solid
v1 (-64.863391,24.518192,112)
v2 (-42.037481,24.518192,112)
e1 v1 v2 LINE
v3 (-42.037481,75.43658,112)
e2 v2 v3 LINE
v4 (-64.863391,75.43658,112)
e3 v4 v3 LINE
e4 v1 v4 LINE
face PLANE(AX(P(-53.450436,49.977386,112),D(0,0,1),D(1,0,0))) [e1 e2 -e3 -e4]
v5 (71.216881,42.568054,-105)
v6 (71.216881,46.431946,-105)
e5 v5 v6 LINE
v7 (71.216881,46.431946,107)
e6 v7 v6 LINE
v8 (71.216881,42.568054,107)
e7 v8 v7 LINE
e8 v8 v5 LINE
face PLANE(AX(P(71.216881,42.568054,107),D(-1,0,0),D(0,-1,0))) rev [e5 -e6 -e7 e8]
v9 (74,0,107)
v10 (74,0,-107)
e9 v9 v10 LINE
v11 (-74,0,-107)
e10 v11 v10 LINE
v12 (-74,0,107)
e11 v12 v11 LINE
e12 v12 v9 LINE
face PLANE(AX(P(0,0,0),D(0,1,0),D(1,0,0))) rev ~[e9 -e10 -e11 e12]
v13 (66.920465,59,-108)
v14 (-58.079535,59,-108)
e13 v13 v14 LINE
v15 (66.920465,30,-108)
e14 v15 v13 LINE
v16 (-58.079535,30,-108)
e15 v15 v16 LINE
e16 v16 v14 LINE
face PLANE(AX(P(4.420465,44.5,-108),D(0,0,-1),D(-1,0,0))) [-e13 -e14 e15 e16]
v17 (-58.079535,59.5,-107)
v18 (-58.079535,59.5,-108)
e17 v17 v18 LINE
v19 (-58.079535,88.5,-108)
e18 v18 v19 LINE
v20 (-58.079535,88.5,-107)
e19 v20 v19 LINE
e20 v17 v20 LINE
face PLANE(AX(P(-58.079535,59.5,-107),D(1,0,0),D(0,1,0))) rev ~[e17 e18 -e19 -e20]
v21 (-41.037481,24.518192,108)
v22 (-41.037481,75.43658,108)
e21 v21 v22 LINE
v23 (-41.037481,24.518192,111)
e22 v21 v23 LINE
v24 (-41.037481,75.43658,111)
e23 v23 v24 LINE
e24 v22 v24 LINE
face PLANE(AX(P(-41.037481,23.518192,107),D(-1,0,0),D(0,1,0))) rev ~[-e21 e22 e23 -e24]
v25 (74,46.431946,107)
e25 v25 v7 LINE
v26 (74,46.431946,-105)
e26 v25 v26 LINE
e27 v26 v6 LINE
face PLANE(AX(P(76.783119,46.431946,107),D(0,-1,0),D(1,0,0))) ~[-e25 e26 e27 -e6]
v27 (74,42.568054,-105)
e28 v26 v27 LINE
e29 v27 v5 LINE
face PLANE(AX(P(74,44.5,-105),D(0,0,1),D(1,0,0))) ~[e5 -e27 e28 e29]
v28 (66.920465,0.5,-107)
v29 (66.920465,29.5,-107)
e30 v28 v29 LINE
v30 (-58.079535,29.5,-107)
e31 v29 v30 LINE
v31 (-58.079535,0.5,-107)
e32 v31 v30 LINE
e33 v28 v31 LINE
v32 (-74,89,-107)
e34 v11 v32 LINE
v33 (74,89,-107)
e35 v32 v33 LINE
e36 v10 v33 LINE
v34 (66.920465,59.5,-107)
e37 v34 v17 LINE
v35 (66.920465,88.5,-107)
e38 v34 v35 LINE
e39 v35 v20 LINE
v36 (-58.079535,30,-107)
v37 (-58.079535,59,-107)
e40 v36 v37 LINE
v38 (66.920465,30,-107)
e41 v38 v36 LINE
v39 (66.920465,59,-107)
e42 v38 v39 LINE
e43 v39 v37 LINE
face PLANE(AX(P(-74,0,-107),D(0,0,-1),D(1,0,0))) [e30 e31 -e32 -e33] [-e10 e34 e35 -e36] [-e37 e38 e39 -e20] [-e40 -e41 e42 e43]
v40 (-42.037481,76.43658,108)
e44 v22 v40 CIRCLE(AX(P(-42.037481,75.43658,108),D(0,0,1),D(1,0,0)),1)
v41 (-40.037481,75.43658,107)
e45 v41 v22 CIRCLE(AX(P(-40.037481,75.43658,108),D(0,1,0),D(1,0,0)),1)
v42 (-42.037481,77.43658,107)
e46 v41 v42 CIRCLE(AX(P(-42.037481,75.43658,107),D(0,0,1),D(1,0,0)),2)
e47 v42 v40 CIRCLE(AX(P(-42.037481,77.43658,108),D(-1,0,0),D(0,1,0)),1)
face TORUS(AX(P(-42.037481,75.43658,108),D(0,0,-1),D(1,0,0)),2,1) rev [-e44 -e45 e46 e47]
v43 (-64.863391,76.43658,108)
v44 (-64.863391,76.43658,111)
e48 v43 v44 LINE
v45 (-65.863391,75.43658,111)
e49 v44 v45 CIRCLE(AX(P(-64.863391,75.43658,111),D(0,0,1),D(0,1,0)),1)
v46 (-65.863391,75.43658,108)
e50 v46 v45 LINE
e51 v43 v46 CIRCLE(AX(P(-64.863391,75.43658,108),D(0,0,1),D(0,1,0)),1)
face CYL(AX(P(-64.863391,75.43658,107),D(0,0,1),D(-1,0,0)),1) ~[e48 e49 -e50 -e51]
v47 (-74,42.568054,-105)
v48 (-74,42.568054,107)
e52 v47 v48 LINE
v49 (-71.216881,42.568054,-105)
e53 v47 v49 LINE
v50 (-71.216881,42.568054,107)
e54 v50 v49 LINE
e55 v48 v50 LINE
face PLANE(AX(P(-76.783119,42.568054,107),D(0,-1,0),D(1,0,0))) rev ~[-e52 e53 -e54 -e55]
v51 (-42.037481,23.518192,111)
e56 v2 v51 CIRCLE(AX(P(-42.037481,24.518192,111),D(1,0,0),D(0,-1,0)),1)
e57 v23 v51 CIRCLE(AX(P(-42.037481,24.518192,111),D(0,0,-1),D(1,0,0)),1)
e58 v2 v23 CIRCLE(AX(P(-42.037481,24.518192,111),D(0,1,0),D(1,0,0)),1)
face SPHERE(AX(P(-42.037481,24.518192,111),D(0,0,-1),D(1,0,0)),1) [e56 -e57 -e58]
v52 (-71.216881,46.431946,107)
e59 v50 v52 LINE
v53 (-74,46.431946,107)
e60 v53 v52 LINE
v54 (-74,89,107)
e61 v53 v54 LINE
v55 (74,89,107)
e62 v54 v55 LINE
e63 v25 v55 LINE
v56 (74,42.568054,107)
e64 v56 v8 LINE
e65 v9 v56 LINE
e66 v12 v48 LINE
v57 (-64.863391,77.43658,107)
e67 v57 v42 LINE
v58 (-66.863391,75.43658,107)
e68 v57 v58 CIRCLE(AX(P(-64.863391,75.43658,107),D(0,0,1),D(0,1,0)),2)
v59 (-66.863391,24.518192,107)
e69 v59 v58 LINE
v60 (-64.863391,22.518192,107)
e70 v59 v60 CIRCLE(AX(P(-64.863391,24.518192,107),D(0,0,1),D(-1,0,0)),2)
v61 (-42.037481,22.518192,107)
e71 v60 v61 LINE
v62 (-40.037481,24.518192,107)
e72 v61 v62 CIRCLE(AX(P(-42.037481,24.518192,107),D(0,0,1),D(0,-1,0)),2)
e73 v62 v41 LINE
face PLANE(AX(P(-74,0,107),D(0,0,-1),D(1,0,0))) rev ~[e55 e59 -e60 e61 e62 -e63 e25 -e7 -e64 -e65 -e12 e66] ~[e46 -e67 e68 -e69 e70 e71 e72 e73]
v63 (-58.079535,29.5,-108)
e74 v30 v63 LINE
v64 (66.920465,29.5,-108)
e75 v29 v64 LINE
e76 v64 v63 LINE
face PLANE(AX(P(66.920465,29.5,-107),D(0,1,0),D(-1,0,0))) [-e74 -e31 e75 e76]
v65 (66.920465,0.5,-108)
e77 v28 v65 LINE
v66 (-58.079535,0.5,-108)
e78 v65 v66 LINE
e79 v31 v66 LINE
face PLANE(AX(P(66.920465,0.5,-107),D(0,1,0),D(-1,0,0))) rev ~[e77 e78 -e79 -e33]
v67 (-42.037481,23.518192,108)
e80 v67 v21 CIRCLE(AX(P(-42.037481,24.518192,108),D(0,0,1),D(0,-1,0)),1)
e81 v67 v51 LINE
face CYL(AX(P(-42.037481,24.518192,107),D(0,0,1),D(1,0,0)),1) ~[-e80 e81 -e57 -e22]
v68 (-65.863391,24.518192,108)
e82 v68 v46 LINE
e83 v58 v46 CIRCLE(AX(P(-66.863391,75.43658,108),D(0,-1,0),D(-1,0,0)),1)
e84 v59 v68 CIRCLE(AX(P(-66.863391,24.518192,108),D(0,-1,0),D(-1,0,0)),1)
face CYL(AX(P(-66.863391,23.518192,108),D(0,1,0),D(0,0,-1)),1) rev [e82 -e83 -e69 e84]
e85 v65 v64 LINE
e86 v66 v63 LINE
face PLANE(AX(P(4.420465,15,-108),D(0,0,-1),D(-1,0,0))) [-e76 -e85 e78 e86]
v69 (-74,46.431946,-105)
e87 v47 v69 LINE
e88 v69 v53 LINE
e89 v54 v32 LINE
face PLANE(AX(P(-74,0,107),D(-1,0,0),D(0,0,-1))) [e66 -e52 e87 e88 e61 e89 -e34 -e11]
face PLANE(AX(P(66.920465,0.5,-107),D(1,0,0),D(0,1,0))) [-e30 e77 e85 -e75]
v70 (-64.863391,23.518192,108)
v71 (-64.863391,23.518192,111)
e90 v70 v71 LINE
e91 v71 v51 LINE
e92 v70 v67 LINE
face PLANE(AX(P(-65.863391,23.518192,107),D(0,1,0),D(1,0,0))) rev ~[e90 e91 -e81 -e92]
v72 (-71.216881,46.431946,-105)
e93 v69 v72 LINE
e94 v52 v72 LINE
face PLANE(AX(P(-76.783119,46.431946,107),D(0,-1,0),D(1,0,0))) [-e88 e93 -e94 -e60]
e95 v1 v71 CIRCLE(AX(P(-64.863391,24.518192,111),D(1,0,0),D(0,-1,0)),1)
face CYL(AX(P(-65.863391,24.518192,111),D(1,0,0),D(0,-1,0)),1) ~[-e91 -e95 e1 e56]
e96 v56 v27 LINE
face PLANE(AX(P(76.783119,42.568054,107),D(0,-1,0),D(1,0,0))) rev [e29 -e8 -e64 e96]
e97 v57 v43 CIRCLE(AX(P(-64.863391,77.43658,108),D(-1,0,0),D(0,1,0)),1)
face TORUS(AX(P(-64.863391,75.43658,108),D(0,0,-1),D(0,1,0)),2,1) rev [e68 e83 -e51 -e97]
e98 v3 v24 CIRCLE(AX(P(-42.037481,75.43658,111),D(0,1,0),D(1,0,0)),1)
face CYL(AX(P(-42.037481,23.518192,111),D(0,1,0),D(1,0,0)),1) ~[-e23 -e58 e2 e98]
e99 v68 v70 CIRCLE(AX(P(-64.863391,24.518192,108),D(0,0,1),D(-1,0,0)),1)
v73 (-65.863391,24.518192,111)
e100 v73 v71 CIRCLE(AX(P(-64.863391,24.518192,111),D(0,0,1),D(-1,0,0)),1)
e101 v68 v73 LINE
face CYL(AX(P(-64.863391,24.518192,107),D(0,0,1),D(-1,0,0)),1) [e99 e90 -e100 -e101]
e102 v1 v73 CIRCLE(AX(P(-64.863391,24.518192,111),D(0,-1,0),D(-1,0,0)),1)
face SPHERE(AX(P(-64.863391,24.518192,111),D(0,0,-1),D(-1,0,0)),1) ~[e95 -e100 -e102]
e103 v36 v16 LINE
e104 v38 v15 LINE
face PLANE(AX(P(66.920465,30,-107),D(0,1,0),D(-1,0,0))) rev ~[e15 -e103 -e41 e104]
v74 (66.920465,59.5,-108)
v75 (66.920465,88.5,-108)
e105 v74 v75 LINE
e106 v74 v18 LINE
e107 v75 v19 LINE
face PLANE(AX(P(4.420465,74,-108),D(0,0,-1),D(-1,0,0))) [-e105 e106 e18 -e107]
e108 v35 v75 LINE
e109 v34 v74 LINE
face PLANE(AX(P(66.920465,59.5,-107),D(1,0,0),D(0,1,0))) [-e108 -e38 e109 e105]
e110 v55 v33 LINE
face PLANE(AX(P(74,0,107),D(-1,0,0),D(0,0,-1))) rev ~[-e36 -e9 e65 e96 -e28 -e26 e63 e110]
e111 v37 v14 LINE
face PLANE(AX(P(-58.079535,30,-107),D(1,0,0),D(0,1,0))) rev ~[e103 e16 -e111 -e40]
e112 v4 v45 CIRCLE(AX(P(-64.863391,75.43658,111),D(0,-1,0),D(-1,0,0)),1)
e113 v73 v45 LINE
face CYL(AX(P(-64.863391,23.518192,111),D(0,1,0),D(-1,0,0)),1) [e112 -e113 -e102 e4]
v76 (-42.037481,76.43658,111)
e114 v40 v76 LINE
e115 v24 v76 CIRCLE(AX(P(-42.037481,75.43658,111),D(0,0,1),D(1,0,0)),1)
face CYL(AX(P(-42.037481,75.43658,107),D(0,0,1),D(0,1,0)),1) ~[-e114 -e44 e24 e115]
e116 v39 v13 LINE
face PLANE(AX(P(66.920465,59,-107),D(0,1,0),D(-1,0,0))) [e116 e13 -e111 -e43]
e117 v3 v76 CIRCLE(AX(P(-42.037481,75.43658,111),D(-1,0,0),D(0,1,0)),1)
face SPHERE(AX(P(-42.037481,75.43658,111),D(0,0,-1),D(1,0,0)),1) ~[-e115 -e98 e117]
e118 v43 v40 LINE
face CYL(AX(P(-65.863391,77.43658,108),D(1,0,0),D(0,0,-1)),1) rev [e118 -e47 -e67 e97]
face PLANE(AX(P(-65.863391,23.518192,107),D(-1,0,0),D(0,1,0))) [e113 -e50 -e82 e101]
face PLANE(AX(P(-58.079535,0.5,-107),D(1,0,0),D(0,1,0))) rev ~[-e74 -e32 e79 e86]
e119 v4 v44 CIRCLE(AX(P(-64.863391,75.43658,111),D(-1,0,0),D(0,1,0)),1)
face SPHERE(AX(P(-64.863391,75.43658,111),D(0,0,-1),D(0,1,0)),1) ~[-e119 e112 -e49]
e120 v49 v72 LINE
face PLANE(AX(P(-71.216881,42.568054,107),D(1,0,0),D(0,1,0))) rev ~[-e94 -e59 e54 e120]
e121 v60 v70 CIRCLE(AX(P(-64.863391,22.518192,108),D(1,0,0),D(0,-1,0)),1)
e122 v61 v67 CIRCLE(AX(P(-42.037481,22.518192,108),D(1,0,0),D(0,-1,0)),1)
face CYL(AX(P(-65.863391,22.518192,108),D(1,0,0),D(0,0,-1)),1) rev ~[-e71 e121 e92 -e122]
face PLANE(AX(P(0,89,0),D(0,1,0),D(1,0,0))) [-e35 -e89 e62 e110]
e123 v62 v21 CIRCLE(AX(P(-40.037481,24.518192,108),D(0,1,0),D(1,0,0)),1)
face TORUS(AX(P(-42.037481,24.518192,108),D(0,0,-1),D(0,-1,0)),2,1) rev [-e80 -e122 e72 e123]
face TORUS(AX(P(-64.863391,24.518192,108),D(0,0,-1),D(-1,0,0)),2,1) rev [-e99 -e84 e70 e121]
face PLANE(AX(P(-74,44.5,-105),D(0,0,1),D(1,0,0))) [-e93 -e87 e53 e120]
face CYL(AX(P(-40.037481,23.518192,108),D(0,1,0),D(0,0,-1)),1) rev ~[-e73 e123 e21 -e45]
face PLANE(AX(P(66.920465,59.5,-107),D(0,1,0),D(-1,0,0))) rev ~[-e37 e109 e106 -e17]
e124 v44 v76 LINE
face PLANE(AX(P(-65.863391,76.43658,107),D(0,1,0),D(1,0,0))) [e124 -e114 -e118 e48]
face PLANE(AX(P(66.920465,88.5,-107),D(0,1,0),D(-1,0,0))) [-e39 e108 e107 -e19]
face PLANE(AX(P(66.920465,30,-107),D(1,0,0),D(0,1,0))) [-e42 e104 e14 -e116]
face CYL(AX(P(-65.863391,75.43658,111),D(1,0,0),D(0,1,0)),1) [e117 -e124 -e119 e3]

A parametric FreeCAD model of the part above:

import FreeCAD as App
import Part
import Sketcher
from FreeCAD import Vector
Q = App.Units.Quantity


def edges_at(feature, points):
    """Names of the edges that pass closest to the given points."""
    edges = feature.Shape.Edges
    near = lambda p: min(range(len(edges)), key=lambda i: edges[i].distToShape(Part.Vertex(*p))[0])
    return sorted({f"Edge{near(p) + 1}" for p in points})

doc = App.newDocument("Part")
body = doc.addObject("PartDesign::Body", "Body")

# Sketch on XZ plane
sketch1 = body.newObject("Sketcher::SketchObject", "Sketch")
sketch1.AttachmentSupport = (doc.getObject("XZ_Plane"), [""])
sketch1.MapMode = "FlatFace"
sketch1.addGeometry(Part.LineSegment(Vector(-74, -107, 0), Vector(-74, 107, 0)), False)
sketch1.addGeometry(Part.LineSegment(Vector(-74, 107, 0), Vector(74, 107, 0)), False)
sketch1.addGeometry(Part.LineSegment(Vector(74, 107, 0), Vector(74, -107, 0)), False)
sketch1.addGeometry(Part.LineSegment(Vector(74, -107, 0), Vector(-74, -107, 0)), False)
sketch1.addConstraint(Sketcher.Constraint("Coincident", 0, 2, 1, 1))
sketch1.addConstraint(Sketcher.Constraint("Coincident", 1, 2, 2, 1))
sketch1.addConstraint(Sketcher.Constraint("Coincident", 2, 2, 3, 1))
sketch1.addConstraint(Sketcher.Constraint("Coincident", 3, 2, 0, 1))
sketch1.addConstraint(Sketcher.Constraint("Vertical", 0))
sketch1.addConstraint(Sketcher.Constraint("Horizontal", 1))
sketch1.addConstraint(Sketcher.Constraint("Vertical", 2))
sketch1.addConstraint(Sketcher.Constraint("Horizontal", 3))
sketch1.addConstraint(Sketcher.Constraint("Symmetric", 0, 2, 2, 2, -1, 1))
sketch1.addConstraint(Sketcher.Constraint("DistanceX", 1, 1, 1, 2, Q("148 mm")))
sketch1.addConstraint(Sketcher.Constraint("DistanceY", 0, 1, 0, 2, Q("214 mm")))
pad1 = body.newObject("PartDesign::Pad", "Pad")
pad1.Profile = sketch1
pad1.Length = 89
pad1.Reversed = True

# Sketch on XY plane
sketch2 = body.newObject("Sketcher::SketchObject", "Sketch001")
sketch2.AttachmentSupport = (doc.getObject("XY_Plane"), [""])
sketch2.MapMode = "FlatFace"
sketch2.AttachmentOffset = App.Placement(Vector(0, 0, 107), App.Rotation())
sketch2.addGeometry(Part.LineSegment(Vector(-76.783119, 46.431946, 0), Vector(-76.783119, 42.568054, 0)), False)
sketch2.addGeometry(Part.LineSegment(Vector(-76.783119, 42.568054, 0), Vector(-71.216881, 42.568054, 0)), False)
sketch2.addGeometry(Part.LineSegment(Vector(-71.216881, 42.568054, 0), Vector(-71.216881, 46.431946, 0)), False)
sketch2.addGeometry(Part.LineSegment(Vector(-71.216881, 46.431946, 0), Vector(-76.783119, 46.431946, 0)), False)
sketch2.addConstraint(Sketcher.Constraint("Coincident", 0, 2, 1, 1))
sketch2.addConstraint(Sketcher.Constraint("Coincident", 1, 2, 2, 1))
sketch2.addConstraint(Sketcher.Constraint("Coincident", 2, 2, 3, 1))
sketch2.addConstraint(Sketcher.Constraint("Coincident", 3, 2, 0, 1))
sketch2.addConstraint(Sketcher.Constraint("Vertical", 0))
sketch2.addConstraint(Sketcher.Constraint("Horizontal", 1))
sketch2.addConstraint(Sketcher.Constraint("Vertical", 2))
sketch2.addConstraint(Sketcher.Constraint("Horizontal", 3))
sketch2.addConstraint(Sketcher.Constraint("DistanceY", 0, 2, 0, 1, Q("3.863892 mm")))
sketch2.addConstraint(Sketcher.Constraint("DistanceX", 1, 1, 1, 2, Q("5.566237 mm")))
sketch2.addConstraint(Sketcher.Constraint("DistanceX", 0, 2, -1, 1, Q("76.783119 mm")))
sketch2.addConstraint(Sketcher.Constraint("DistanceY", -1, 1, 0, 2, Q("42.568054 mm")))
pocket1 = body.newObject("PartDesign::Pocket", "Pocket")
pocket1.Profile = sketch2
pocket1.Length = 212
doc.recompute()

mirrored = body.newObject("PartDesign::Mirrored", "Mirrored")
mirrored.Originals = [pocket1]
mirrored.MirrorPlane = (doc.getObject("YZ_Plane"), [""])
body.Tip = mirrored

# Sketch on XY plane
sketch3 = body.newObject("Sketcher::SketchObject", "Sketch002")
sketch3.AttachmentSupport = (doc.getObject("XY_Plane"), [""])
sketch3.MapMode = "FlatFace"
sketch3.AttachmentOffset = App.Placement(Vector(0, 0, 107), App.Rotation())
sketch3.addGeometry(Part.LineSegment(Vector(-65.863391, 76.43658, 0), Vector(-65.863391, 23.518192, 0)), False)
sketch3.addGeometry(Part.LineSegment(Vector(-65.863391, 23.518192, 0), Vector(-41.037481, 23.518192, 0)), False)
sketch3.addGeometry(Part.LineSegment(Vector(-41.037481, 23.518192, 0), Vector(-41.037481, 76.43658, 0)), False)
sketch3.addGeometry(Part.LineSegment(Vector(-41.037481, 76.43658, 0), Vector(-65.863391, 76.43658, 0)), False)
sketch3.addConstraint(Sketcher.Constraint("Coincident", 0, 2, 1, 1))
sketch3.addConstraint(Sketcher.Constraint("Coincident", 1, 2, 2, 1))
sketch3.addConstraint(Sketcher.Constraint("Coincident", 2, 2, 3, 1))
sketch3.addConstraint(Sketcher.Constraint("Coincident", 3, 2, 0, 1))
sketch3.addConstraint(Sketcher.Constraint("Vertical", 0))
sketch3.addConstraint(Sketcher.Constraint("Horizontal", 1))
sketch3.addConstraint(Sketcher.Constraint("Vertical", 2))
sketch3.addConstraint(Sketcher.Constraint("Horizontal", 3))
sketch3.addConstraint(Sketcher.Constraint("DistanceX", 1, 1, 1, 2, Q("24.82591 mm")))
sketch3.addConstraint(Sketcher.Constraint("DistanceY", 0, 2, 0, 1, Q("52.918388 mm")))
sketch3.addConstraint(Sketcher.Constraint("DistanceX", 0, 2, -1, 1, Q("65.863391 mm")))
sketch3.addConstraint(Sketcher.Constraint("DistanceY", -1, 1, 2, 2, Q("76.43658 mm")))
pad2 = body.newObject("PartDesign::Pad", "Pad001")
pad2.Profile = sketch3
pad2.Length = 5
doc.recompute()

fillet = body.newObject("PartDesign::Fillet", "Fillet")
fillet.Base = (pad2, edges_at(pad2, [
    (-41.037, 49.977, 107),
    (-41.037, 23.518, 109.5),
    (-53.45, 76.437, 107),
    (-41.037, 76.437, 109.5),
    (-65.863, 49.977, 107),
    (-65.863, 76.437, 109.5),
    (-53.45, 23.518, 107),
    (-65.863, 23.518, 109.5),
    (-41.037, 49.977, 112),
    (-53.45, 76.437, 112),
    (-65.863, 49.977, 112),
    (-53.45, 23.518, 112),
]))
fillet.Radius = 1

# Sketch on XY plane
sketch4 = body.newObject("Sketcher::SketchObject", "Sketch003")
sketch4.AttachmentSupport = (doc.getObject("XY_Plane"), [""])
sketch4.MapMode = "FlatFace"
sketch4.AttachmentOffset = App.Placement(Vector(0, 0, -107), App.Rotation())
sketch4.addGeometry(Part.LineSegment(Vector(66.920465, 88.5, 0), Vector(66.920465, 59.5, 0)), False)
sketch4.addGeometry(Part.LineSegment(Vector(66.920465, 59.5, 0), Vector(-58.079535, 59.5, 0)), False)
sketch4.addGeometry(Part.LineSegment(Vector(-58.079535, 59.5, 0), Vector(-58.079535, 88.5, 0)), False)
sketch4.addGeometry(Part.LineSegment(Vector(-58.079535, 88.5, 0), Vector(66.920465, 88.5, 0)), False)
sketch4.addConstraint(Sketcher.Constraint("Coincident", 0, 2, 1, 1))
sketch4.addConstraint(Sketcher.Constraint("Coincident", 1, 2, 2, 1))
sketch4.addConstraint(Sketcher.Constraint("Coincident", 2, 2, 3, 1))
sketch4.addConstraint(Sketcher.Constraint("Coincident", 3, 2, 0, 1))
sketch4.addConstraint(Sketcher.Constraint("Vertical", 0))
sketch4.addConstraint(Sketcher.Constraint("Horizontal", 1))
sketch4.addConstraint(Sketcher.Constraint("Vertical", 2))
sketch4.addConstraint(Sketcher.Constraint("Horizontal", 3))
sketch4.addConstraint(Sketcher.Constraint("DistanceX", 1, 2, 1, 1, Q("125 mm")))
sketch4.addConstraint(Sketcher.Constraint("DistanceY", 0, 2, 0, 1, Q("29 mm")))
sketch4.addConstraint(Sketcher.Constraint("DistanceY", -1, 1, 0, 2, Q("59.5 mm")))
sketch4.addConstraint(Sketcher.Constraint("DistanceX", -1, 1, 0, 2, Q("66.920465 mm")))
pad3 = body.newObject("PartDesign::Pad", "Pad002")
pad3.Profile = sketch4
pad3.Length = 1
pad3.Reversed = True
doc.recompute()

linearpattern = body.newObject("PartDesign::LinearPattern", "LinearPattern")
linearpattern.Originals = [pad3]
linearpattern.Direction = (doc.getObject("Y_Axis"), [""])
linearpattern.Mode = "offset"
linearpattern.Offset = 29.5
linearpattern.Occurrences = 3
linearpattern.Reversed = True
body.Tip = linearpattern

doc.recompute()
